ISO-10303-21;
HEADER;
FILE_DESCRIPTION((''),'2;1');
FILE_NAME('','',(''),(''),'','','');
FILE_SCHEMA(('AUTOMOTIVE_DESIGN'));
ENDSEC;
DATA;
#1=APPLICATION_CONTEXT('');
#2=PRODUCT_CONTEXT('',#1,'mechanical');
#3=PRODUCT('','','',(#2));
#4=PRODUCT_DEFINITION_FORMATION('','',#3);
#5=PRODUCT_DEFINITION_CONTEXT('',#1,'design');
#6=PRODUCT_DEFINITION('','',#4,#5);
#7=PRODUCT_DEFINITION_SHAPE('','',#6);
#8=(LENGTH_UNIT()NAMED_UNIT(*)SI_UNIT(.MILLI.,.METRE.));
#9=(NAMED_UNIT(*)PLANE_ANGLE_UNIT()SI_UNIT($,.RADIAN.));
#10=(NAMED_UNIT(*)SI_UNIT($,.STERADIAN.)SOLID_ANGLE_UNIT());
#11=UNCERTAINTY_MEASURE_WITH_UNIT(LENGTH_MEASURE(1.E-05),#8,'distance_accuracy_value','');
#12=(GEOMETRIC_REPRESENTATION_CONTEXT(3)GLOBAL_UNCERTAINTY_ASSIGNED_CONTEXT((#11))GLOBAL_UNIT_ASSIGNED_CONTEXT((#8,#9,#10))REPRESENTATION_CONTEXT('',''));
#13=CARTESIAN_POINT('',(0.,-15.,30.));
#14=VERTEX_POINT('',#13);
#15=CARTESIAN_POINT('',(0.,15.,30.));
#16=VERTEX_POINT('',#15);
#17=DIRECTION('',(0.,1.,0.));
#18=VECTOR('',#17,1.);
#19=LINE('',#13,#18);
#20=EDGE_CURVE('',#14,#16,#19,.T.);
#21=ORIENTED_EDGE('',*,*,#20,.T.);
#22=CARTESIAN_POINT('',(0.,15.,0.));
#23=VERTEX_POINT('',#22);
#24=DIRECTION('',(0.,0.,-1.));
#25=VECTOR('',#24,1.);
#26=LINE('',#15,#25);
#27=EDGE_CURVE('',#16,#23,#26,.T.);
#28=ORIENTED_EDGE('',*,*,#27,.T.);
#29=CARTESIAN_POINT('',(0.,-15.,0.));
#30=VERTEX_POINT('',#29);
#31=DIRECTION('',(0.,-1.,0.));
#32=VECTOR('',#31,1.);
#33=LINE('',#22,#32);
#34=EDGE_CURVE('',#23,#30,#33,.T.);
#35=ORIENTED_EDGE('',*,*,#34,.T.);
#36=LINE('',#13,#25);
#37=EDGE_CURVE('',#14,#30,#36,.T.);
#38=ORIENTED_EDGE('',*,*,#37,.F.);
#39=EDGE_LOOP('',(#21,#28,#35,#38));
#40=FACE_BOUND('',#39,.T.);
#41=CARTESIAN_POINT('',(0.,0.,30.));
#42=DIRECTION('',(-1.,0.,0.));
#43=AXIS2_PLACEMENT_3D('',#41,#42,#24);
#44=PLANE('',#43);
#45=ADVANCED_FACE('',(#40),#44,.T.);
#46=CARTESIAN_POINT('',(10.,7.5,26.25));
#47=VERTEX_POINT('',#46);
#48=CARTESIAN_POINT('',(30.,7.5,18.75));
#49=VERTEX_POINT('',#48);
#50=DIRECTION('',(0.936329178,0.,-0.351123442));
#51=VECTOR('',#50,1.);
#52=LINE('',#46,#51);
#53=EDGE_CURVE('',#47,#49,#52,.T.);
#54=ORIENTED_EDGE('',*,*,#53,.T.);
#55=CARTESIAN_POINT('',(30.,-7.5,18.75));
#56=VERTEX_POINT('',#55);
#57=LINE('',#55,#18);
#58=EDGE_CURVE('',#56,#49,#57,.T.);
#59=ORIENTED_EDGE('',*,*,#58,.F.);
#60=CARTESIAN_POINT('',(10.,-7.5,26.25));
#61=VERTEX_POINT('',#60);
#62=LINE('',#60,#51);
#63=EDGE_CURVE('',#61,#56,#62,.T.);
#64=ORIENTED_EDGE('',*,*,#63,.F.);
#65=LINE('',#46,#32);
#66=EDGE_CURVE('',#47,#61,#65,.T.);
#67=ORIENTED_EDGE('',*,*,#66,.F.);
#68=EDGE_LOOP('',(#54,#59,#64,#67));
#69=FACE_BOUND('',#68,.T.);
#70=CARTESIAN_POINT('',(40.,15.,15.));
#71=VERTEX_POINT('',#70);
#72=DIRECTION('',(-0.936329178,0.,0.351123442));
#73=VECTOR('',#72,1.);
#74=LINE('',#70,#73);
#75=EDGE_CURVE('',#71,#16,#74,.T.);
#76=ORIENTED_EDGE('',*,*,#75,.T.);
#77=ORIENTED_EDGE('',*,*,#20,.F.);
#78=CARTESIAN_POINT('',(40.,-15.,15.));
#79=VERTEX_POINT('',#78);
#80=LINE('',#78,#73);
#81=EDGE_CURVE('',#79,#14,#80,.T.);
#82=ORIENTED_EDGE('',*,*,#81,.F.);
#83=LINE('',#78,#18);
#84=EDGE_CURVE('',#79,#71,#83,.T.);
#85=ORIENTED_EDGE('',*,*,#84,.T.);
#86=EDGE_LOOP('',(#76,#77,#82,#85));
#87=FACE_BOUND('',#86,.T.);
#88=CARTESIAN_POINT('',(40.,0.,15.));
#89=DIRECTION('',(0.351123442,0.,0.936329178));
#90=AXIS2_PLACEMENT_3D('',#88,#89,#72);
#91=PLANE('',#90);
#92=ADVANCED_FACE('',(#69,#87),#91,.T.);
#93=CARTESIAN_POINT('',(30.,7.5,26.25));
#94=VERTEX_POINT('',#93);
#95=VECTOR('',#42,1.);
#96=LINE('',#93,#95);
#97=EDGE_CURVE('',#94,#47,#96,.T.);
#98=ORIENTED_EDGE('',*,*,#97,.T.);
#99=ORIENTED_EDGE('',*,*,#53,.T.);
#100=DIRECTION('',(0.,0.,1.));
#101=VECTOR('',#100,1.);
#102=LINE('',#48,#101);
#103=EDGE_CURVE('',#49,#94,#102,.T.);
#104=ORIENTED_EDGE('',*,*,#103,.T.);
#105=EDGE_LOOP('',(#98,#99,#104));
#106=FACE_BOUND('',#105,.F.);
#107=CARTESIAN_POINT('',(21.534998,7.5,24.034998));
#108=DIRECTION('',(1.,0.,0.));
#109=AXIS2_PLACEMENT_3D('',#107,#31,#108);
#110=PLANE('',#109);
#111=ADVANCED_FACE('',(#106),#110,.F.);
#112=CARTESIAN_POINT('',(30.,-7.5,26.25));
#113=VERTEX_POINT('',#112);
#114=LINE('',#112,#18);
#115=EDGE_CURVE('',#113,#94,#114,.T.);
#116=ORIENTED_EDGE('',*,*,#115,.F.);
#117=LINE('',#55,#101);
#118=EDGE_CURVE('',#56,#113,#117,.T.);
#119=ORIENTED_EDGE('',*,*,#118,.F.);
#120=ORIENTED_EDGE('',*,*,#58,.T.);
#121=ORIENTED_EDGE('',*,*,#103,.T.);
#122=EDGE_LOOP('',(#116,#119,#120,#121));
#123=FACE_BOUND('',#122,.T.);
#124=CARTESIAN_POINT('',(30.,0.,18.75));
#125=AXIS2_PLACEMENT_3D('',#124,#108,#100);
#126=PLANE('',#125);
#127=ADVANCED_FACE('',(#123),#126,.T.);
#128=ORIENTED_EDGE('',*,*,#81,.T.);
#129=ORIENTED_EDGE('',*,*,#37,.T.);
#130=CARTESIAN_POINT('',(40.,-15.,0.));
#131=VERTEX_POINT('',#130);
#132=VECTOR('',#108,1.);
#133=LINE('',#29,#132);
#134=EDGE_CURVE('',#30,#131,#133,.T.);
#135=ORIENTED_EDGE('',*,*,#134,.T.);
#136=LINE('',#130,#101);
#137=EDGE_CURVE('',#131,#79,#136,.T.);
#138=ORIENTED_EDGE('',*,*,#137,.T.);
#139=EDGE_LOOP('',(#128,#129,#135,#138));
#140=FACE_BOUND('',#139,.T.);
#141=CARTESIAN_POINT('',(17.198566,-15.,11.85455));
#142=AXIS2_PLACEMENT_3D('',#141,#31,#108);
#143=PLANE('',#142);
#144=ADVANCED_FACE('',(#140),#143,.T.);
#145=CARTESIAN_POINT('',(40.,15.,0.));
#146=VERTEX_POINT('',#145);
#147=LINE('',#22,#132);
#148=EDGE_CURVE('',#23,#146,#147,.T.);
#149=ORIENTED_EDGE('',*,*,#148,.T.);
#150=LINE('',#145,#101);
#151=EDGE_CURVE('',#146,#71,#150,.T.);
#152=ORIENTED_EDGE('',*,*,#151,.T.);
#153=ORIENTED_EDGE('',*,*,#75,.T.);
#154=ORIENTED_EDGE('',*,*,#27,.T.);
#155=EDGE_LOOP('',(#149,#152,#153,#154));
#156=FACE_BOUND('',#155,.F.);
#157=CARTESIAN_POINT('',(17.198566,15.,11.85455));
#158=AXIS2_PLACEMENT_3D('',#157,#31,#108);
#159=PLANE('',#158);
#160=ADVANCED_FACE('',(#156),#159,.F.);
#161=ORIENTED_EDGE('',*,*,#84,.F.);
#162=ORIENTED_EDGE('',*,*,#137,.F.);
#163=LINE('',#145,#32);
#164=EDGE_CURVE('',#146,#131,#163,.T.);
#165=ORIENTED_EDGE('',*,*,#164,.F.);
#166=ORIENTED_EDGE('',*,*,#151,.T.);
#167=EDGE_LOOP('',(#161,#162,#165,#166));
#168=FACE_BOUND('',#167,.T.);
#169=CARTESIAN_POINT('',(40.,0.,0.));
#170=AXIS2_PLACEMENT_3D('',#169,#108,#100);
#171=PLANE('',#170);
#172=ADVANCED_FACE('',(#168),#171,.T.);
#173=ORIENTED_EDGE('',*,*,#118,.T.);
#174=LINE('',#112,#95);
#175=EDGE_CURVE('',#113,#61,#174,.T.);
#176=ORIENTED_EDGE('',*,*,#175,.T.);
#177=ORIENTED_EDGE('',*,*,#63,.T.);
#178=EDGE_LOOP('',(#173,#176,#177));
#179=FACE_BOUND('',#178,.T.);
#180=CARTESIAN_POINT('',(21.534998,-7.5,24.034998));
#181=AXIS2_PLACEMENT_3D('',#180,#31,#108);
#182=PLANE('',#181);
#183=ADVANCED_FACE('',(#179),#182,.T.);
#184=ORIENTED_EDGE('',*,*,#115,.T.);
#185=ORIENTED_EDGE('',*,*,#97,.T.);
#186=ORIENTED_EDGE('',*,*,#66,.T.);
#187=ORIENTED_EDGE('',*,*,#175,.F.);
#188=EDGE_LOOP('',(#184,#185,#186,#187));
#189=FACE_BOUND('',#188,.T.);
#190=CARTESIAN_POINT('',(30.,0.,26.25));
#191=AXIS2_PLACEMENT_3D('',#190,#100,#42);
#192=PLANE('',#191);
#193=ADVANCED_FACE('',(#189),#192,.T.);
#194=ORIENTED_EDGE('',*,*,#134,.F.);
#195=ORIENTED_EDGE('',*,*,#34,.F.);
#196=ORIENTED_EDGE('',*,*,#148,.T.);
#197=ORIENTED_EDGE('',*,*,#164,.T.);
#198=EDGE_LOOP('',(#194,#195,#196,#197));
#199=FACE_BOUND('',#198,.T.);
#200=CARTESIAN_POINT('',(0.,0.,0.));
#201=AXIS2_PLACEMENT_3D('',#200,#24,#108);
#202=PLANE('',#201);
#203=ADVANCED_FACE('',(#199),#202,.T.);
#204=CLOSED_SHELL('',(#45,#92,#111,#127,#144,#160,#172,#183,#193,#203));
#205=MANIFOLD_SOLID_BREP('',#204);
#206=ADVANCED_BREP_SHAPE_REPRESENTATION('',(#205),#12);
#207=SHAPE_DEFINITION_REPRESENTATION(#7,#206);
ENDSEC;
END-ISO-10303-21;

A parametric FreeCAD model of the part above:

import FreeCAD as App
import Part
import Sketcher

V = App.Vector
Q = App.Units.Quantity


def add_polygon(sketch, points):
    """Adds a closed chain of lines whose ends are joined by coincident constraints."""
    first, n = sketch.GeometryCount, len(points)
    for a, b in zip(points, points[1:] + points[:1]):
        sketch.addGeometry(Part.LineSegment(App.Vector(*a, 0), App.Vector(*b, 0)), False)
    for i in range(n):
        sketch.addConstraint(Sketcher.Constraint("Coincident", first + i, 2, first + (i + 1) % n, 1))

doc = App.newDocument("Part")
body = doc.addObject("PartDesign::Body", "Body")

sketch1 = doc.addObject("Sketcher::SketchObject", "Sketch")
body.addObject(sketch1)
sketch1.AttachmentSupport = (doc.XZ_Plane, [""])
sketch1.MapMode = "FlatFace"
add_polygon(sketch1, [(0, 30), (0, 0), (40, 0), (40, 15)])
sketch1.addConstraint([
    Sketcher.Constraint("Vertical", 0),
    Sketcher.Constraint("Horizontal", 1),
    Sketcher.Constraint("Vertical", 2),
    Sketcher.Constraint("Coincident", 0, 2, -1, 1),
    Sketcher.Constraint("DistanceX", 1, 1, 1, 2, Q("40 mm")),
    Sketcher.Constraint("DistanceY", 0, 2, 0, 1, Q("30 mm")),
    Sketcher.Constraint("DistanceY", 2, 1, 2, 2, Q("15 mm")),
])
pad1 = doc.addObject("PartDesign::Pad", "Pad")
body.addObject(pad1)
pad1.Profile = sketch1
pad1.Length = 30
pad1.Midplane = True

sketch2 = doc.addObject("Sketcher::SketchObject", "Sketch001")
body.addObject(sketch2)
sketch2.AttachmentSupport = (doc.XZ_Plane, [""])
sketch2.MapMode = "FlatFace"
add_polygon(sketch2, [(30, 26.25), (10, 26.25), (30, 18.75)])
sketch2.addConstraint([
    Sketcher.Constraint("Horizontal", 0),
    Sketcher.Constraint("Vertical", 2),
    Sketcher.Constraint("DistanceX", 0, 2, 0, 1, Q("20 mm")),
    Sketcher.Constraint("DistanceY", 2, 1, 2, 2, Q("7.5 mm")),
    Sketcher.Constraint("DistanceX", -1, 1, 0, 2, Q("10 mm")),
    Sketcher.Constraint("DistanceY", -1, 1, 0, 2, Q("26.25 mm")),
])
pad2 = doc.addObject("PartDesign::Pad", "Pad001")
body.addObject(pad2)
pad2.Profile = sketch2
pad2.Length = 15
pad2.Midplane = True

doc.recompute()
